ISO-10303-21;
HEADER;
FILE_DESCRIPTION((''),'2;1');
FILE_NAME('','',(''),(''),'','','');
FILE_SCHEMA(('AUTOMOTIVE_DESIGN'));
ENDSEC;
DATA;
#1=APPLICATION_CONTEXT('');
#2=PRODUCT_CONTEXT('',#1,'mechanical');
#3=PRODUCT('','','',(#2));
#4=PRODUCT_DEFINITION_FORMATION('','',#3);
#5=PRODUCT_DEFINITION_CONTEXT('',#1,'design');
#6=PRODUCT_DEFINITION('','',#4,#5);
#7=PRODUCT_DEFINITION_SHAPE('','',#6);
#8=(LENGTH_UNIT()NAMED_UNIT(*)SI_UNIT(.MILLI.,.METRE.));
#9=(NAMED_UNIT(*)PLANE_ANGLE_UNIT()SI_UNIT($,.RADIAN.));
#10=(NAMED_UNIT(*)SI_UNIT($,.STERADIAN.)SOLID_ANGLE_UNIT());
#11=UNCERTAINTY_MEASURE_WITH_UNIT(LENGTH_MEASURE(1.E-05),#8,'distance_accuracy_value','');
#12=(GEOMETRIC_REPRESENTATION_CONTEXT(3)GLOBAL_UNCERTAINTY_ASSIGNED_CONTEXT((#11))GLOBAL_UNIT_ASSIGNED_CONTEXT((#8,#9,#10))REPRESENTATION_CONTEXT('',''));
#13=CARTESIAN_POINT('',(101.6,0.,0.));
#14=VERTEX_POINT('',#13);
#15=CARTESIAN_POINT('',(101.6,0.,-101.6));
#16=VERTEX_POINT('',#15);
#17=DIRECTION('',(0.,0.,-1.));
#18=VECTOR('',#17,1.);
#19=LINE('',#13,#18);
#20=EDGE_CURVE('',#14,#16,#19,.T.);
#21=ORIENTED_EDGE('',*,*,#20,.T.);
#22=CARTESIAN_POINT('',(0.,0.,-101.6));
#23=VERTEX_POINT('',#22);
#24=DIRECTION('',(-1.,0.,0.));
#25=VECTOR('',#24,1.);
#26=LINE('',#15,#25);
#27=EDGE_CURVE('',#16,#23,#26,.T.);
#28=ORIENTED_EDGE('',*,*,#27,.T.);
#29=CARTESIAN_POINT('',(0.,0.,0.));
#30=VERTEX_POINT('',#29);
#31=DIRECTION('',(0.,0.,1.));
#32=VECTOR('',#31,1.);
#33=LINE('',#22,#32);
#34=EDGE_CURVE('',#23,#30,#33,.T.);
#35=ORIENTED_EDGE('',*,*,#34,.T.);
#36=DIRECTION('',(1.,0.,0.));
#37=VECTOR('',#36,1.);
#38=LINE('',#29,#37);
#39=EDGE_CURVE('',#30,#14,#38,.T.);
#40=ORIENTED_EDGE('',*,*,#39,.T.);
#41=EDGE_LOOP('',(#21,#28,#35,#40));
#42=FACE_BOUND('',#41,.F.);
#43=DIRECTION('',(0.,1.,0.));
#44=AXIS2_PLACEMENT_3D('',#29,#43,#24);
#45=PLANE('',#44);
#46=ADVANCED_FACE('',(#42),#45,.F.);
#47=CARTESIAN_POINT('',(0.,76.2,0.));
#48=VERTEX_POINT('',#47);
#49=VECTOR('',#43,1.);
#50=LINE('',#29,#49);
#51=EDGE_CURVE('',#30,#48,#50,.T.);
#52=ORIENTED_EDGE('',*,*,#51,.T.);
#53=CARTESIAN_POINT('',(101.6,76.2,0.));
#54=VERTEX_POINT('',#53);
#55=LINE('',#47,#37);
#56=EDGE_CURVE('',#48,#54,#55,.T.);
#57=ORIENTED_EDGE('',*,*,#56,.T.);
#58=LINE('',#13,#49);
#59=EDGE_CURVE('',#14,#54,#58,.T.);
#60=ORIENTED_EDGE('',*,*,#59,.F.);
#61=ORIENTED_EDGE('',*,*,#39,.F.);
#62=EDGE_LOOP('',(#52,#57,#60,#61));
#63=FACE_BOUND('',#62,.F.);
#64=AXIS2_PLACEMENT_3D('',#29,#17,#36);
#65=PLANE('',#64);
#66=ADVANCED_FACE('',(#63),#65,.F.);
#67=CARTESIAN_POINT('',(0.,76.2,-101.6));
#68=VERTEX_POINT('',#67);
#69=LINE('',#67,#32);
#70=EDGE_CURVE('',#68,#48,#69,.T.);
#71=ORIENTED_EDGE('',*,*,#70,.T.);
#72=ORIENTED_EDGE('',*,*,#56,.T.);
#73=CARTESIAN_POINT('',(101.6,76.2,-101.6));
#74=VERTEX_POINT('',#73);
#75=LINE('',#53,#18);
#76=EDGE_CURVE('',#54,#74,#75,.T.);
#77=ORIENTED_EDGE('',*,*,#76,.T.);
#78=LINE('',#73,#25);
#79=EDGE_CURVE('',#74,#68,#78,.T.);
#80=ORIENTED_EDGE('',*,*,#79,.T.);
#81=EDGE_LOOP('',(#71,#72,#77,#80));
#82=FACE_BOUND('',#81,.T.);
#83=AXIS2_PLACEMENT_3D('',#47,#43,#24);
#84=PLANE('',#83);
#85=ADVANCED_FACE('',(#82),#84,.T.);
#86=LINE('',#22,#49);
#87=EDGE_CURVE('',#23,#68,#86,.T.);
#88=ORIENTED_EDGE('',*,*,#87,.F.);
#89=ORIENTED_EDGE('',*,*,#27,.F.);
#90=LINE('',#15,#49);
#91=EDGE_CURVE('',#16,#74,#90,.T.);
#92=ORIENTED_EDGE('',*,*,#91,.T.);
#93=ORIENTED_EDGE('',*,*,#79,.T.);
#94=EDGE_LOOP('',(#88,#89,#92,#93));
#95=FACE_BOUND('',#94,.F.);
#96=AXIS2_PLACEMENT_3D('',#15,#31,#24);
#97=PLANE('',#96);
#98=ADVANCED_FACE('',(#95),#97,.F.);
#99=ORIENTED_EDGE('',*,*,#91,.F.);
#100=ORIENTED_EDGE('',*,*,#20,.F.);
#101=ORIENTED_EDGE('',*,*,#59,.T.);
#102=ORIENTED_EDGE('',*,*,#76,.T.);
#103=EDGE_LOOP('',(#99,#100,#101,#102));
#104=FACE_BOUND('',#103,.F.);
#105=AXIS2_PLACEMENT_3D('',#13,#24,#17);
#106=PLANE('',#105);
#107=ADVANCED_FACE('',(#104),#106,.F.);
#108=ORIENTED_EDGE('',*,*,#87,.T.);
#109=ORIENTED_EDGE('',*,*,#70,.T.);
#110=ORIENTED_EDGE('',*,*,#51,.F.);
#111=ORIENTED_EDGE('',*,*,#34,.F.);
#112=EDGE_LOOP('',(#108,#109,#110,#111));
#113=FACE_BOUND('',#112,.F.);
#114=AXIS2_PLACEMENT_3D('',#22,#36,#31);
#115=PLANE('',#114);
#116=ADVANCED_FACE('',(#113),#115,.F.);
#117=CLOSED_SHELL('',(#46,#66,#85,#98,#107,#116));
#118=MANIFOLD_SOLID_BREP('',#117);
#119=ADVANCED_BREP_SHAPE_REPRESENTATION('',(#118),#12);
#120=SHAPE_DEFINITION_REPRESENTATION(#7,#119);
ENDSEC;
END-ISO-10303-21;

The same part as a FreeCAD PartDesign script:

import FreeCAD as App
import Part
import Sketcher
Q = App.Units.Quantity


def add_polygon(sketch, points):
    """Adds a closed chain of lines whose ends are joined by coincident constraints."""
    first, n = sketch.GeometryCount, len(points)
    for a, b in zip(points, points[1:] + points[:1]):
        sketch.addGeometry(Part.LineSegment(App.Vector(*a, 0), App.Vector(*b, 0)), False)
    for i in range(n):
        sketch.addConstraint(Sketcher.Constraint("Coincident", first + i, 2, first + (i + 1) % n, 1))

doc = App.newDocument("Part")
body = doc.addObject("PartDesign::Body", "Body")

# Sketch on XZ plane
sketch1 = body.newObject("Sketcher::SketchObject", "Sketch")
sketch1.AttachmentSupport = (doc.getObject("XZ_Plane"), [""])
sketch1.MapMode = "FlatFace"
add_polygon(sketch1, [(0, -101.6), (0, 0), (101.6, 0), (101.6, -101.6)])  # lines 0-3
sketch1.addConstraint(Sketcher.Constraint("Vertical", 0))
sketch1.addConstraint(Sketcher.Constraint("Horizontal", 1))
sketch1.addConstraint(Sketcher.Constraint("Vertical", 2))
sketch1.addConstraint(Sketcher.Constraint("Horizontal", 3))
sketch1.addConstraint(Sketcher.Constraint("Coincident", 0, 2, -1, 1))
sketch1.addConstraint(Sketcher.Constraint("Equal", 3, 0))
sketch1.addConstraint(Sketcher.Constraint("DistanceX", 1, 1, 1, 2, Q("4 in")))
pad1 = body.newObject("PartDesign::Pad", "Pad")
pad1.Profile = sketch1
pad1.Length = Q("3 in")
pad1.Reversed = True

doc.recompute()
